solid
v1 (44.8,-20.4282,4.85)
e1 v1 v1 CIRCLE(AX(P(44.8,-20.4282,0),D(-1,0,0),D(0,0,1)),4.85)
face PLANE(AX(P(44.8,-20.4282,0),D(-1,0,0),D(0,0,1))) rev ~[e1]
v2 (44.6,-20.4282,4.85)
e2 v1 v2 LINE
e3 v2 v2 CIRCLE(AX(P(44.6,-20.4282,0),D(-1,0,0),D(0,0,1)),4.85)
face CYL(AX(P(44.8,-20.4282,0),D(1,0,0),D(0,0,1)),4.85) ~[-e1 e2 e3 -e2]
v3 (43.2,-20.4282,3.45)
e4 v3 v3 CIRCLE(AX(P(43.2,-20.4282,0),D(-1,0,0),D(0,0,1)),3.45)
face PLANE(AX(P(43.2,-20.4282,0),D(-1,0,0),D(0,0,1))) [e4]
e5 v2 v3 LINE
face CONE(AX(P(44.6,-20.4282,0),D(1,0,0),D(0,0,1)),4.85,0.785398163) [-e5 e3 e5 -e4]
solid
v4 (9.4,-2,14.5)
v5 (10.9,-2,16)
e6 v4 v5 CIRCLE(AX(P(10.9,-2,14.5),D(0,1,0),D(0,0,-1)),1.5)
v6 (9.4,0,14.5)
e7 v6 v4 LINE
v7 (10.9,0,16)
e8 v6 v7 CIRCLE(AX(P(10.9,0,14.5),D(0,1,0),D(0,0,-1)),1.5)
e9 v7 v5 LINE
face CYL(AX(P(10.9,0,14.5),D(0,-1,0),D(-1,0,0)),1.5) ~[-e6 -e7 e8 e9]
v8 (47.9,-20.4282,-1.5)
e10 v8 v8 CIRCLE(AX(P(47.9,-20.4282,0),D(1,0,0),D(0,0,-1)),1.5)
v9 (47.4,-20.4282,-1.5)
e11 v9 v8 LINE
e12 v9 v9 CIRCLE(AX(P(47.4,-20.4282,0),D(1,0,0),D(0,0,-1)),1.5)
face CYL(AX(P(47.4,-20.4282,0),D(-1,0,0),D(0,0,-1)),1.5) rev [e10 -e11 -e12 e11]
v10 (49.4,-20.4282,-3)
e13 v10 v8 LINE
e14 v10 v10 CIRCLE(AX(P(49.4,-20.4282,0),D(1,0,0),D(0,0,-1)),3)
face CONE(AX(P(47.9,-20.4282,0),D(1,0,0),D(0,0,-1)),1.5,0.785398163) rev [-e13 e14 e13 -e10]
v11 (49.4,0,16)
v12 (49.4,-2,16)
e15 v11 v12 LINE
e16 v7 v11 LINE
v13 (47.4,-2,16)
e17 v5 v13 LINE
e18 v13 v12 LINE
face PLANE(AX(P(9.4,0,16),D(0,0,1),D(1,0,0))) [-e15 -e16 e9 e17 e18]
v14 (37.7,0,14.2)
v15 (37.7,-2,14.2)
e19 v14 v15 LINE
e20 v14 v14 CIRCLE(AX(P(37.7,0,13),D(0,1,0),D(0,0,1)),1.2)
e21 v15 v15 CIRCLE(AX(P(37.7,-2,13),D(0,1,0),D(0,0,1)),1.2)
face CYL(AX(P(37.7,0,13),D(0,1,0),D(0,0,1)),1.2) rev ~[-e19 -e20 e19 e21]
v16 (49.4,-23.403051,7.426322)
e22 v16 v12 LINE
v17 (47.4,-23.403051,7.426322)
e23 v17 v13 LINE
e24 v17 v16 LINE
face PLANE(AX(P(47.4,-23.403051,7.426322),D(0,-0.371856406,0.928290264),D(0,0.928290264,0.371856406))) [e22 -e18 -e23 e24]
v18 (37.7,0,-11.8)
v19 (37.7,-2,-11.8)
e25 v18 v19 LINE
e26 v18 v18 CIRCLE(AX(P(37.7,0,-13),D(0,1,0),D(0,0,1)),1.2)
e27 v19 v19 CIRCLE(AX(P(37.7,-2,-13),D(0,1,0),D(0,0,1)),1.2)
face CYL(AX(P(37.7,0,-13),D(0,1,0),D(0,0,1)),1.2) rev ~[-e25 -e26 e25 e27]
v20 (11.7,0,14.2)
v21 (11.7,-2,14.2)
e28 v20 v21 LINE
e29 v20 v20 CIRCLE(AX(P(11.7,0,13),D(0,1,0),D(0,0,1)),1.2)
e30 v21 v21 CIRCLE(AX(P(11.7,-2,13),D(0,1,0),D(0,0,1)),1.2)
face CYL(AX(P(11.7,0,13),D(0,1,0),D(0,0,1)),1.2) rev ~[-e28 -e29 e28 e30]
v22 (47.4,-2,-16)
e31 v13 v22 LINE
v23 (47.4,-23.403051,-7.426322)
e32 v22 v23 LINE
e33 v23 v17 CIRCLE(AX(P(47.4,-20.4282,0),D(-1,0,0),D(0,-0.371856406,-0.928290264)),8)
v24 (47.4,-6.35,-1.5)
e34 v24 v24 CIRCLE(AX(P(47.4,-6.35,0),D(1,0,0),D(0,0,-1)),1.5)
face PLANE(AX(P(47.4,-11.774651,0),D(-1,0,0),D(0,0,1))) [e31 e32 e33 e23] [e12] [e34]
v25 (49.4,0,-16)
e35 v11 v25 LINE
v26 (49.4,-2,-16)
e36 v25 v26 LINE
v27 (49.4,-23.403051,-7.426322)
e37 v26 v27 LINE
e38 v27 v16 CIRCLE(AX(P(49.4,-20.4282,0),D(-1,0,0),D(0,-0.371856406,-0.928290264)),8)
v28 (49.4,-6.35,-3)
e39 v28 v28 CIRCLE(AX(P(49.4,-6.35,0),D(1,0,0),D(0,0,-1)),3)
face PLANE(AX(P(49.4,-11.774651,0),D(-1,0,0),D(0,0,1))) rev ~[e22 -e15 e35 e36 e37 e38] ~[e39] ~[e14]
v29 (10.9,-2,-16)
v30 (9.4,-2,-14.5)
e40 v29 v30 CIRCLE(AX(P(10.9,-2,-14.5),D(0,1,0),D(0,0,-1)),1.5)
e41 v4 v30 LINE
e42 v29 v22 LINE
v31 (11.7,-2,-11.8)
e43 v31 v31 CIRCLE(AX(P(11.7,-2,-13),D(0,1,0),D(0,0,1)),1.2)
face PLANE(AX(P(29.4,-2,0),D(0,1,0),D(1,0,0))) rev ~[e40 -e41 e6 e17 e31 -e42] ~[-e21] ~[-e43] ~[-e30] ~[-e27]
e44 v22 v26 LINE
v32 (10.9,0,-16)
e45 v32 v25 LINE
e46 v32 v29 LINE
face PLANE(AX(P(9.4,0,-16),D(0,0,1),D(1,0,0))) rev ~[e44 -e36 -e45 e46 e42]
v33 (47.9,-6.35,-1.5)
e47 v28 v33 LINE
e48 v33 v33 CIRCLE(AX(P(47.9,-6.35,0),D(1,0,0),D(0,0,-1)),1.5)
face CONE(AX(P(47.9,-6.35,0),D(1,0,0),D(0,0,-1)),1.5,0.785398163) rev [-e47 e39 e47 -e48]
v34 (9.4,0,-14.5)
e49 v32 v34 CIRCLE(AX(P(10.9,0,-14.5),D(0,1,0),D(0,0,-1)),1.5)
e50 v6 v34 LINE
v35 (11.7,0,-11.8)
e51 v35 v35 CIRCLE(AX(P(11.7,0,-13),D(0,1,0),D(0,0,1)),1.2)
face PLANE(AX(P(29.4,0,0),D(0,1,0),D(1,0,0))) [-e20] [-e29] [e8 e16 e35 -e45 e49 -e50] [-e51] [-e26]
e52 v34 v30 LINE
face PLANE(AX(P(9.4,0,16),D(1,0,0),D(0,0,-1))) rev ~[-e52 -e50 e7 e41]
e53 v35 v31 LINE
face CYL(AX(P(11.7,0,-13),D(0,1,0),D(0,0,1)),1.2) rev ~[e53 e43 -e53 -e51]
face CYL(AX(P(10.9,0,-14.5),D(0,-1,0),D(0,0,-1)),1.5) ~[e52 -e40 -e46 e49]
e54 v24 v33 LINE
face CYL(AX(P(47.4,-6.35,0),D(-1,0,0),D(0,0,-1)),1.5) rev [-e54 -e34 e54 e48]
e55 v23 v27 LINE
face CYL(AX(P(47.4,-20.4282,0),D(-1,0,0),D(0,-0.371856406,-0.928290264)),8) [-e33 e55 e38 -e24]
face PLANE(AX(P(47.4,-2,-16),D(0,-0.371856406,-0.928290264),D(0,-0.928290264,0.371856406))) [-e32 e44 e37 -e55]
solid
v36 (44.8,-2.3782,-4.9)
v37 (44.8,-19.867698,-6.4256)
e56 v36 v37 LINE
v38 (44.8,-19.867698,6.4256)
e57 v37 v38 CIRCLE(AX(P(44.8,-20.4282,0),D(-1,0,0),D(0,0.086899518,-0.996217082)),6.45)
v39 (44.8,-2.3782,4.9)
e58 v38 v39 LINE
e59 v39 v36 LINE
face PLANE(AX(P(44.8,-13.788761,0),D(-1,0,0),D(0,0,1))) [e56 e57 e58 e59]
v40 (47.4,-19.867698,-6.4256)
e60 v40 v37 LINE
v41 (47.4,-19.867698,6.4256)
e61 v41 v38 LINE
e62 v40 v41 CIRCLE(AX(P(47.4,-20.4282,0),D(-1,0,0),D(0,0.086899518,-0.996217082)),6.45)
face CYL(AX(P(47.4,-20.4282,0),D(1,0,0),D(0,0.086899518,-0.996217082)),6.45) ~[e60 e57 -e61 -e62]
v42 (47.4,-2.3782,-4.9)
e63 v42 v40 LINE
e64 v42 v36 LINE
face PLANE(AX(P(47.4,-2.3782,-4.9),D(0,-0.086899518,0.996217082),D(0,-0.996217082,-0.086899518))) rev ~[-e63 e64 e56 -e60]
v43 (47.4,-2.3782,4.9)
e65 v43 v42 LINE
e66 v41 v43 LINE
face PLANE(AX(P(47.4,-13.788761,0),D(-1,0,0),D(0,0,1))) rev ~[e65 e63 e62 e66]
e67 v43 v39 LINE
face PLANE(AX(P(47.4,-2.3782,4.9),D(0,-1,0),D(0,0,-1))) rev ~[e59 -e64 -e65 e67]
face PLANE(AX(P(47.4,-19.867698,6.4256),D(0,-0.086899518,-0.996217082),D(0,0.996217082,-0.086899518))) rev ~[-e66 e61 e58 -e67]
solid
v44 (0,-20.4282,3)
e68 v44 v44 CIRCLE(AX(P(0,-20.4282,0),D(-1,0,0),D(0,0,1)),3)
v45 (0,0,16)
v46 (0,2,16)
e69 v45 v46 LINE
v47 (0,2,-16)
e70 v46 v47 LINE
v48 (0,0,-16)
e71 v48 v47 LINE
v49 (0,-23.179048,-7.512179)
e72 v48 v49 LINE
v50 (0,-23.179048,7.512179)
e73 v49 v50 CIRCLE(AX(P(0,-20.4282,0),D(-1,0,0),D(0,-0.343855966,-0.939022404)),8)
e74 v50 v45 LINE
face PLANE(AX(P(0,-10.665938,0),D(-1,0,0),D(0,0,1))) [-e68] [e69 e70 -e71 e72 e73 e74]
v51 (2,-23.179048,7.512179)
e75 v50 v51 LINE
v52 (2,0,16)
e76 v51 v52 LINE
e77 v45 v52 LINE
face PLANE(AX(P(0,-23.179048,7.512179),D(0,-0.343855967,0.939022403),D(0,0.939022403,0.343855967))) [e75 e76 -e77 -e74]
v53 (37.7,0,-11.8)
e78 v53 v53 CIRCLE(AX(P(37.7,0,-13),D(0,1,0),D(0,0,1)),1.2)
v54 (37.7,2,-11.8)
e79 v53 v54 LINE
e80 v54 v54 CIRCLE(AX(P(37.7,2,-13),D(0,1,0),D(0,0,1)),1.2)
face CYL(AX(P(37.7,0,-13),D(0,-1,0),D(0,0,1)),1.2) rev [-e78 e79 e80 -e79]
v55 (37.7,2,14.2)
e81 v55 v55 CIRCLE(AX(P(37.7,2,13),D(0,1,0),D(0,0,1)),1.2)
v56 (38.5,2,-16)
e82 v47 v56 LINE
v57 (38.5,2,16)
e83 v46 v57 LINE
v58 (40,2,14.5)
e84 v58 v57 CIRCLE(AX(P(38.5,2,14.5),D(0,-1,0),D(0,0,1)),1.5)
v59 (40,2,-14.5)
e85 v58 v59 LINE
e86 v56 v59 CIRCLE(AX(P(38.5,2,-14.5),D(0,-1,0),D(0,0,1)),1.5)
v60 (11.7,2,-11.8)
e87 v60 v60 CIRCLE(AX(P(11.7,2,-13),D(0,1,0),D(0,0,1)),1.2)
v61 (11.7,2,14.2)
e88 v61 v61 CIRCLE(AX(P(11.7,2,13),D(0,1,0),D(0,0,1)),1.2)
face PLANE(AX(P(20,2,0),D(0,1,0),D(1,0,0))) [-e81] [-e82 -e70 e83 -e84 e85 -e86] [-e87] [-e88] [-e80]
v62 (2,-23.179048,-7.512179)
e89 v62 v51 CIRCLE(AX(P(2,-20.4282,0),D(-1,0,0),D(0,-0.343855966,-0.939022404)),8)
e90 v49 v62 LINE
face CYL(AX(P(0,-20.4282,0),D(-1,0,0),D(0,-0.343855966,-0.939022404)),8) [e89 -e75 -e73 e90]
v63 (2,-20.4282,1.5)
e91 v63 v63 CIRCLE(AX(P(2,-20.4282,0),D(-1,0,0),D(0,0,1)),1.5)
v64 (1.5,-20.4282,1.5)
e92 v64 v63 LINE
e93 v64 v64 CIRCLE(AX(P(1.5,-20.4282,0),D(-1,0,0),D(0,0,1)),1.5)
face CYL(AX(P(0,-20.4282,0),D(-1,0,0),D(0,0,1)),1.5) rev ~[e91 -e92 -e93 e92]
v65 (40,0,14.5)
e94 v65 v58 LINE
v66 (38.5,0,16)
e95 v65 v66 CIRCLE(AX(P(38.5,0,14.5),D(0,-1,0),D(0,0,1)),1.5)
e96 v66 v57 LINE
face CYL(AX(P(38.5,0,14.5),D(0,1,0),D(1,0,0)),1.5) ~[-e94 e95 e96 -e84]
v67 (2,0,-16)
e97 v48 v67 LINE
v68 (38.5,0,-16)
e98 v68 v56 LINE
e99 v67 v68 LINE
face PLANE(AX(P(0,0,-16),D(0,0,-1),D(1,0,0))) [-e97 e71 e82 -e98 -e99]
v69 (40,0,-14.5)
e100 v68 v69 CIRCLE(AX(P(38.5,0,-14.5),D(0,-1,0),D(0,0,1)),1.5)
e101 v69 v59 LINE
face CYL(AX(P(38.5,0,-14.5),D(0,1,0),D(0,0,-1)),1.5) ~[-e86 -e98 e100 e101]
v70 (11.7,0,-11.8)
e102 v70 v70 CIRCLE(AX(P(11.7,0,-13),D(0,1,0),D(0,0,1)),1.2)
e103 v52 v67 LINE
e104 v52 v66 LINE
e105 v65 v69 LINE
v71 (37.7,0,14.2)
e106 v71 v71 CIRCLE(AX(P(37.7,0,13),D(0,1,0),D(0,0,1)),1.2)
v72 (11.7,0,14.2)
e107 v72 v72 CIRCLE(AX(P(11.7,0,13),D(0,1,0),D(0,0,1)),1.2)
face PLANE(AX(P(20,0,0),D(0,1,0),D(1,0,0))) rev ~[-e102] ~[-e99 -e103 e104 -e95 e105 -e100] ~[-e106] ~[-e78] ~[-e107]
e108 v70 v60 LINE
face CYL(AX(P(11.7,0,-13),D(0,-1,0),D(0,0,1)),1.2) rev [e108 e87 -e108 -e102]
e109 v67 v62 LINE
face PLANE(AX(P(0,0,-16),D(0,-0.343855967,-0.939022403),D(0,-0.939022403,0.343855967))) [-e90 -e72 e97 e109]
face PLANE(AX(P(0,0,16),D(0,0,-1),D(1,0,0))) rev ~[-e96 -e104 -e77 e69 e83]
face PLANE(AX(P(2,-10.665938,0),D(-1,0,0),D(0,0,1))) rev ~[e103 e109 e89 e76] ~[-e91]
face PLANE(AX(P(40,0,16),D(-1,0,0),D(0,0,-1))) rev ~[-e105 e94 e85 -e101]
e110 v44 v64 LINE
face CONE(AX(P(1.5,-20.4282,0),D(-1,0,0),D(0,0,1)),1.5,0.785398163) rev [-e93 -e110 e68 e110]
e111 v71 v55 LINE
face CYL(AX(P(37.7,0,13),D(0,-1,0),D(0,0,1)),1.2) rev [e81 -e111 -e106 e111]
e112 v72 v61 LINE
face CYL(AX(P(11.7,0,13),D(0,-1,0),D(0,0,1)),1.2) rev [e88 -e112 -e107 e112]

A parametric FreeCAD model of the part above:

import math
import FreeCAD as App
import Part
import Sketcher


def edges_at(feature, points):
    """Names of the edges that pass closest to the given points."""
    edges = feature.Shape.Edges
    near = lambda p: min(range(len(edges)), key=lambda i: edges[i].distToShape(Part.Vertex(*p))[0])
    return sorted({f"Edge{near(p) + 1}" for p in points})

doc = App.newDocument("Part")
body = doc.addObject("PartDesign::Body", "Body")

# Sketch on XZ plane
sketch1 = doc.addObject("Sketcher::SketchObject", "Sketch")
body.addObject(sketch1)
sketch1.AttachmentSupport = (doc.XZ_Plane, [""])
sketch1.MapMode = "FlatFace"
sketch1.addGeometry(Part.LineSegment(App.Vector(0, -16, 0), App.Vector(0, 16, 0)), False)
sketch1.addGeometry(Part.LineSegment(App.Vector(0, 16, 0), App.Vector(40, 16, 0)), False)
sketch1.addGeometry(Part.LineSegment(App.Vector(40, 16, 0), App.Vector(40, -16, 0)), False)
sketch1.addGeometry(Part.LineSegment(App.Vector(40, -16, 0), App.Vector(0, -16, 0)), False)
sketch1.addGeometry(Part.Circle(App.Vector(11.7, 13, 0), App.Vector(0, 0, 1), 1.2), False)
sketch1.addGeometry(Part.Circle(App.Vector(37.7, 13, 0), App.Vector(0, 0, 1), 1.2), False)
sketch1.addGeometry(Part.Circle(App.Vector(11.7, -13, 0), App.Vector(0, 0, 1), 1.2), False)
sketch1.addGeometry(Part.Circle(App.Vector(37.7, -13, 0), App.Vector(0, 0, 1), 1.2), False)
sketch1.addConstraint(Sketcher.Constraint("Coincident", 0, 2, 1, 1))
sketch1.addConstraint(Sketcher.Constraint("Coincident", 1, 2, 2, 1))
sketch1.addConstraint(Sketcher.Constraint("Coincident", 2, 2, 3, 1))
sketch1.addConstraint(Sketcher.Constraint("Coincident", 3, 2, 0, 1))
sketch1.addConstraint(Sketcher.Constraint("Vertical", 0))
sketch1.addConstraint(Sketcher.Constraint("Horizontal", 1))
sketch1.addConstraint(Sketcher.Constraint("Vertical", 2))
sketch1.addConstraint(Sketcher.Constraint("Horizontal", 3))
sketch1.addConstraint(Sketcher.Constraint("Equal", 4, 5))
sketch1.addConstraint(Sketcher.Constraint("Equal", 5, 6))
sketch1.addConstraint(Sketcher.Constraint("Equal", 6, 7))
sketch1.addConstraint(Sketcher.Constraint("Symmetric", 0, 2, 3, 2, -1, 1))
sketch1.addConstraint(Sketcher.Constraint("Symmetric", 4, 3, 6, 3, -1))
sketch1.addConstraint(Sketcher.Constraint("Symmetric", 5, 3, 7, 3, -1))
sketch1.addConstraint(Sketcher.Constraint("Horizontal", 4, 3, 5, 3))
sketch1.addConstraint(Sketcher.Constraint("Diameter", 4, 2.4))
sketch1.addConstraint(Sketcher.Constraint("DistanceX", 1, 1, 1, 2, 40.0))
sketch1.addConstraint(Sketcher.Constraint("DistanceY", 0, 1, 0, 2, 32.0))
sketch1.addConstraint(Sketcher.Constraint("DistanceY", -1, 1, 4, 3, 13.0))
sketch1.addConstraint(Sketcher.Constraint("DistanceX", 4, 3, 5, 3, 26.0))
sketch1.addConstraint(Sketcher.Constraint("DistanceX", -1, 1, 4, 3, 11.7))
pad1 = doc.addObject("PartDesign::Pad", "Pad")
body.addObject(pad1)
pad1.Profile = sketch1
pad1.Length = 2
pad1.Reversed = True

# Sketch on YZ plane
sketch2 = doc.addObject("Sketcher::SketchObject", "Sketch001")
body.addObject(sketch2)
sketch2.AttachmentSupport = (doc.YZ_Plane, [""])
sketch2.MapMode = "FlatFace"
sketch2.addGeometry(Part.LineSegment(App.Vector(0, -16, 0), App.Vector(-23.2, -7.5, 0)), False)
sketch2.addGeometry(Part.ArcOfCircle(Part.Circle(App.Vector(-20.4, 0, 0), App.Vector(0, 0, 1), 8), math.radians(110), math.radians(250)), False)
sketch2.addGeometry(Part.LineSegment(App.Vector(-23.2, 7.5, 0), App.Vector(0, 16, 0)), False)
sketch2.addGeometry(Part.LineSegment(App.Vector(0, 16, 0), App.Vector(0, -16, 0)), False)
sketch2.addGeometry(Part.Circle(App.Vector(-20.4, 0, 0), App.Vector(0, 0, 1), 1.5), False)
sketch2.addConstraint(Sketcher.Constraint("Tangent", 0, 2, 1, 2))
sketch2.addConstraint(Sketcher.Constraint("Tangent", 1, 1, 2, 1))
sketch2.addConstraint(Sketcher.Constraint("Coincident", 2, 2, 3, 1))
sketch2.addConstraint(Sketcher.Constraint("Coincident", 3, 2, 0, 1))
sketch2.addConstraint(Sketcher.Constraint("Vertical", 3))
sketch2.addConstraint(Sketcher.Constraint("Coincident", 4, 3, 1, 3))
sketch2.addConstraint(Sketcher.Constraint("Symmetric", 2, 2, 3, 2, -1, 1))
sketch2.addConstraint(Sketcher.Constraint("PointOnObject", 1, 3, -1))
sketch2.addConstraint(Sketcher.Constraint("Diameter", 4, 3.0))
sketch2.addConstraint(Sketcher.Constraint("Radius", 1, 8.0))
sketch2.addConstraint(Sketcher.Constraint("DistanceY", 3, 2, 3, 1, 32.0))
sketch2.addConstraint(Sketcher.Constraint("DistanceX", 1, 3, -1, 1, 20.4282))
pad2 = doc.addObject("PartDesign::Pad", "Pad001")
body.addObject(pad2)
pad2.Profile = sketch2
pad2.Length = 2
doc.recompute()

fillet = doc.addObject("PartDesign::Fillet", "Fillet")
body.addObject(fillet)
fillet.Base = (pad2, edges_at(pad2, [(40, 1, -16), (40, 1, 16)]))
fillet.Radius = 1.5
doc.recompute()

chamfer = doc.addObject("PartDesign::Chamfer", "Chamfer")
body.addObject(chamfer)
chamfer.Base = (fillet, edges_at(fillet, [(0, -20.428, -1.5)]))
chamfer.Size = 1.5
body2 = doc.addObject("PartDesign::Body", "Body001")

# Sketch on XZ plane
sketch3 = doc.addObject("Sketcher::SketchObject", "Sketch002")
body2.addObject(sketch3)
sketch3.AttachmentSupport = (doc.getObject("XZ_Plane001"), [""])
sketch3.MapMode = "FlatFace"
sketch3.addGeometry(Part.LineSegment(App.Vector(9.4, -16, 0), App.Vector(9.4, 16, 0)), False)
sketch3.addGeometry(Part.LineSegment(App.Vector(9.4, 16, 0), App.Vector(49.4, 16, 0)), False)
sketch3.addGeometry(Part.LineSegment(App.Vector(49.4, 16, 0), App.Vector(49.4, -16, 0)), False)
sketch3.addGeometry(Part.LineSegment(App.Vector(49.4, -16, 0), App.Vector(9.4, -16, 0)), False)
sketch3.addGeometry(Part.Circle(App.Vector(11.7, 13, 0), App.Vector(0, 0, 1), 1.2), False)
sketch3.addGeometry(Part.Circle(App.Vector(37.7, 13, 0), App.Vector(0, 0, 1), 1.2), False)
sketch3.addGeometry(Part.Circle(App.Vector(11.7, -13, 0), App.Vector(0, 0, 1), 1.2), False)
sketch3.addGeometry(Part.Circle(App.Vector(37.7, -13, 0), App.Vector(0, 0, 1), 1.2), False)
sketch3.addConstraint(Sketcher.Constraint("Coincident", 0, 2, 1, 1))
sketch3.addConstraint(Sketcher.Constraint("Coincident", 1, 2, 2, 1))
sketch3.addConstraint(Sketcher.Constraint("Coincident", 2, 2, 3, 1))
sketch3.addConstraint(Sketcher.Constraint("Coincident", 3, 2, 0, 1))
sketch3.addConstraint(Sketcher.Constraint("Vertical", 0))
sketch3.addConstraint(Sketcher.Constraint("Horizontal", 1))
sketch3.addConstraint(Sketcher.Constraint("Vertical", 2))
sketch3.addConstraint(Sketcher.Constraint("Horizontal", 3))
sketch3.addConstraint(Sketcher.Constraint("Equal", 4, 5))
sketch3.addConstraint(Sketcher.Constraint("Equal", 5, 6))
sketch3.addConstraint(Sketcher.Constraint("Equal", 6, 7))
sketch3.addConstraint(Sketcher.Constraint("Symmetric", 4, 3, 6, 3, -1))
sketch3.addConstraint(Sketcher.Constraint("Symmetric", 5, 3, 7, 3, -1))
sketch3.addConstraint(Sketcher.Constraint("Horizontal", 4, 3, 5, 3))
sketch3.addConstraint(Sketcher.Constraint("Diameter", 4, 2.4))
sketch3.addConstraint(Sketcher.Constraint("DistanceX", 1, 1, 1, 2, 40.0))
sketch3.addConstraint(Sketcher.Constraint("DistanceY", 0, 1, 0, 2, 32.0))
sketch3.addConstraint(Sketcher.Constraint("DistanceY", -1, 1, 4, 3, 13.0))
sketch3.addConstraint(Sketcher.Constraint("DistanceY", -1, 1, 0, 2, 16.0))
sketch3.addConstraint(Sketcher.Constraint("DistanceX", 4, 3, 5, 3, 26.0))
sketch3.addConstraint(Sketcher.Constraint("DistanceX", -1, 1, 4, 3, 11.7))
sketch3.addConstraint(Sketcher.Constraint("DistanceX", -1, 1, 0, 2, 9.4))
pad3 = doc.addObject("PartDesign::Pad", "Pad002")
body2.addObject(pad3)
pad3.Profile = sketch3
pad3.Length = 2

# Sketch on YZ plane
sketch4 = doc.addObject("Sketcher::SketchObject", "Sketch003")
body2.addObject(sketch4)
sketch4.AttachmentSupport = (doc.getObject("YZ_Plane001"), [""])
sketch4.MapMode = "FlatFace"
sketch4.AttachmentOffset = App.Placement(App.Vector(0, 0, 47.4), App.Rotation())
sketch4.addGeometry(Part.LineSegment(App.Vector(-23.4, -7.4, 0), App.Vector(-2, -16, 0)), False)
sketch4.addGeometry(Part.LineSegment(App.Vector(-2, -16, 0), App.Vector(-2, 16, 0)), False)
sketch4.addGeometry(Part.LineSegment(App.Vector(-2, 16, 0), App.Vector(-23.4, 7.4, 0)), False)
sketch4.addGeometry(Part.ArcOfCircle(Part.Circle(App.Vector(-20.4, 0, 0), App.Vector(0, 0, 1), 8), math.radians(112), math.radians(248)), False)
sketch4.addGeometry(Part.Circle(App.Vector(-20.4, 0, 0), App.Vector(0, 0, 1), 1.5), False)
sketch4.addGeometry(Part.Circle(App.Vector(-6.3, 0, 0), App.Vector(0, 0, 1), 1.5), False)
sketch4.addConstraint(Sketcher.Constraint("Coincident", 0, 2, 1, 1))
sketch4.addConstraint(Sketcher.Constraint("Coincident", 1, 2, 2, 1))
sketch4.addConstraint(Sketcher.Constraint("Tangent", 2, 2, 3, 1))
sketch4.addConstraint(Sketcher.Constraint("Tangent", 3, 2, 0, 1))
sketch4.addConstraint(Sketcher.Constraint("Vertical", 1))
sketch4.addConstraint(Sketcher.Constraint("Coincident", 4, 3, 3, 3))
sketch4.addConstraint(Sketcher.Constraint("Equal", 4, 5))
sketch4.addConstraint(Sketcher.Constraint("Symmetric", 2, 2, 3, 2, -1))
sketch4.addConstraint(Sketcher.Constraint("PointOnObject", 5, 3, -1))
sketch4.addConstraint(Sketcher.Constraint("Diameter", 4, 3.0))
sketch4.addConstraint(Sketcher.Constraint("Radius", 3, 8.0))
sketch4.addConstraint(Sketcher.Constraint("DistanceY", 1, 1, 1, 2, 32.0))
sketch4.addConstraint(Sketcher.Constraint("DistanceX", 0, 2, -1, 1, 2.0))
sketch4.addConstraint(Sketcher.Constraint("DistanceX", 5, 3, -1, 1, 6.35))
sketch4.addConstraint(Sketcher.Constraint("DistanceX", 3, 3, -1, 1, 20.4282))
pad4 = doc.addObject("PartDesign::Pad", "Pad003")
body2.addObject(pad4)
pad4.Profile = sketch4
pad4.Length = 2
doc.recompute()

fillet2 = doc.addObject("PartDesign::Fillet", "Fillet001")
body2.addObject(fillet2)
fillet2.Base = (pad4, edges_at(pad4, [(9.4, -1, 16), (9.4, -1, -16)]))
fillet2.Radius = 1.5
doc.recompute()

chamfer2 = doc.addObject("PartDesign::Chamfer", "Chamfer001")
body2.addObject(chamfer2)
chamfer2.Base = (fillet2, edges_at(fillet2, [(49.4, -20.428, 1.5), (49.4, -6.35, 1.5)]))
chamfer2.Size = 1.5
body3 = doc.addObject("PartDesign::Body", "Body002")

# Sketch on YZ plane
sketch5 = doc.addObject("Sketcher::SketchObject", "Sketch004")
body3.addObject(sketch5)
sketch5.AttachmentSupport = (doc.getObject("YZ_Plane002"), [""])
sketch5.MapMode = "FlatFace"
sketch5.AttachmentOffset = App.Placement(App.Vector(0, 0, 47.4), App.Rotation())
sketch5.addGeometry(Part.LineSegment(App.Vector(-2, 5, 0), App.Vector(-2, -5, 0)), False)
sketch5.addGeometry(Part.LineSegment(App.Vector(-2, -5, 0), App.Vector(-20, -6, 0)), False)
sketch5.addGeometry(Part.ArcOfCircle(Part.Circle(App.Vector(-20, 0, 0), App.Vector(0, 0, 1), 6), math.radians(85), math.radians(275)), False)
sketch5.addGeometry(Part.LineSegment(App.Vector(-20, 6, 0), App.Vector(-2, 5, 0)), False)
sketch5.addConstraint(Sketcher.Constraint("Coincident", 0, 2, 1, 1))
sketch5.addConstraint(Sketcher.Constraint("Tangent", 1, 2, 2, 2))
sketch5.addConstraint(Sketcher.Constraint("Tangent", 2, 1, 3, 1))
sketch5.addConstraint(Sketcher.Constraint("Coincident", 3, 2, 0, 1))
sketch5.addConstraint(Sketcher.Constraint("Vertical", 0))
sketch5.addConstraint(Sketcher.Constraint("Symmetric", 1, 2, 2, 1, -1))
sketch5.addConstraint(Sketcher.Constraint("Radius", 2, 6.45))
sketch5.addConstraint(Sketcher.Constraint("DistanceY", 0, 2, 0, 1, 9.8))
sketch5.addConstraint(Sketcher.Constraint("DistanceX", 2, 3, 0, 2, 18.05))
sketch5.addConstraint(Sketcher.Constraint("DistanceX", 2, 3, -1, 1, 20.4282))
pad5 = doc.addObject("PartDesign::Pad", "Pad004")
body3.addObject(pad5)
pad5.Profile = sketch5
pad5.Length = 2.6
pad5.Reversed = True
body4 = doc.addObject("PartDesign::Body", "Body003")

# Sketch on YZ plane
sketch6 = doc.addObject("Sketcher::SketchObject", "Sketch005")
body4.addObject(sketch6)
sketch6.AttachmentSupport = (doc.getObject("YZ_Plane003"), [""])
sketch6.MapMode = "FlatFace"
sketch6.AttachmentOffset = App.Placement(App.Vector(0, 0, 44.8), App.Rotation())
sketch6.addGeometry(Part.Circle(App.Vector(-20.4, 0, 0), App.Vector(0, 0, 1), 4.8), False)
sketch6.addConstraint(Sketcher.Constraint("PointOnObject", 0, 3, -1))
sketch6.addConstraint(Sketcher.Constraint("Diameter", 0, 9.7))
sketch6.addConstraint(Sketcher.Constraint("DistanceX", 0, 3, -1, 1, 20.4282))
pad6 = doc.addObject("PartDesign::Pad", "Pad005")
body4.addObject(pad6)
pad6.Profile = sketch6
pad6.Length = 1.6
pad6.Reversed = True
doc.recompute()

chamfer3 = doc.addObject("PartDesign::Chamfer", "Chamfer002")
body4.addObject(chamfer3)
chamfer3.Base = (pad6, edges_at(pad6, [(43.2, -20.428, -4.85)]))
chamfer3.Size = 1.4

doc.recompute()
